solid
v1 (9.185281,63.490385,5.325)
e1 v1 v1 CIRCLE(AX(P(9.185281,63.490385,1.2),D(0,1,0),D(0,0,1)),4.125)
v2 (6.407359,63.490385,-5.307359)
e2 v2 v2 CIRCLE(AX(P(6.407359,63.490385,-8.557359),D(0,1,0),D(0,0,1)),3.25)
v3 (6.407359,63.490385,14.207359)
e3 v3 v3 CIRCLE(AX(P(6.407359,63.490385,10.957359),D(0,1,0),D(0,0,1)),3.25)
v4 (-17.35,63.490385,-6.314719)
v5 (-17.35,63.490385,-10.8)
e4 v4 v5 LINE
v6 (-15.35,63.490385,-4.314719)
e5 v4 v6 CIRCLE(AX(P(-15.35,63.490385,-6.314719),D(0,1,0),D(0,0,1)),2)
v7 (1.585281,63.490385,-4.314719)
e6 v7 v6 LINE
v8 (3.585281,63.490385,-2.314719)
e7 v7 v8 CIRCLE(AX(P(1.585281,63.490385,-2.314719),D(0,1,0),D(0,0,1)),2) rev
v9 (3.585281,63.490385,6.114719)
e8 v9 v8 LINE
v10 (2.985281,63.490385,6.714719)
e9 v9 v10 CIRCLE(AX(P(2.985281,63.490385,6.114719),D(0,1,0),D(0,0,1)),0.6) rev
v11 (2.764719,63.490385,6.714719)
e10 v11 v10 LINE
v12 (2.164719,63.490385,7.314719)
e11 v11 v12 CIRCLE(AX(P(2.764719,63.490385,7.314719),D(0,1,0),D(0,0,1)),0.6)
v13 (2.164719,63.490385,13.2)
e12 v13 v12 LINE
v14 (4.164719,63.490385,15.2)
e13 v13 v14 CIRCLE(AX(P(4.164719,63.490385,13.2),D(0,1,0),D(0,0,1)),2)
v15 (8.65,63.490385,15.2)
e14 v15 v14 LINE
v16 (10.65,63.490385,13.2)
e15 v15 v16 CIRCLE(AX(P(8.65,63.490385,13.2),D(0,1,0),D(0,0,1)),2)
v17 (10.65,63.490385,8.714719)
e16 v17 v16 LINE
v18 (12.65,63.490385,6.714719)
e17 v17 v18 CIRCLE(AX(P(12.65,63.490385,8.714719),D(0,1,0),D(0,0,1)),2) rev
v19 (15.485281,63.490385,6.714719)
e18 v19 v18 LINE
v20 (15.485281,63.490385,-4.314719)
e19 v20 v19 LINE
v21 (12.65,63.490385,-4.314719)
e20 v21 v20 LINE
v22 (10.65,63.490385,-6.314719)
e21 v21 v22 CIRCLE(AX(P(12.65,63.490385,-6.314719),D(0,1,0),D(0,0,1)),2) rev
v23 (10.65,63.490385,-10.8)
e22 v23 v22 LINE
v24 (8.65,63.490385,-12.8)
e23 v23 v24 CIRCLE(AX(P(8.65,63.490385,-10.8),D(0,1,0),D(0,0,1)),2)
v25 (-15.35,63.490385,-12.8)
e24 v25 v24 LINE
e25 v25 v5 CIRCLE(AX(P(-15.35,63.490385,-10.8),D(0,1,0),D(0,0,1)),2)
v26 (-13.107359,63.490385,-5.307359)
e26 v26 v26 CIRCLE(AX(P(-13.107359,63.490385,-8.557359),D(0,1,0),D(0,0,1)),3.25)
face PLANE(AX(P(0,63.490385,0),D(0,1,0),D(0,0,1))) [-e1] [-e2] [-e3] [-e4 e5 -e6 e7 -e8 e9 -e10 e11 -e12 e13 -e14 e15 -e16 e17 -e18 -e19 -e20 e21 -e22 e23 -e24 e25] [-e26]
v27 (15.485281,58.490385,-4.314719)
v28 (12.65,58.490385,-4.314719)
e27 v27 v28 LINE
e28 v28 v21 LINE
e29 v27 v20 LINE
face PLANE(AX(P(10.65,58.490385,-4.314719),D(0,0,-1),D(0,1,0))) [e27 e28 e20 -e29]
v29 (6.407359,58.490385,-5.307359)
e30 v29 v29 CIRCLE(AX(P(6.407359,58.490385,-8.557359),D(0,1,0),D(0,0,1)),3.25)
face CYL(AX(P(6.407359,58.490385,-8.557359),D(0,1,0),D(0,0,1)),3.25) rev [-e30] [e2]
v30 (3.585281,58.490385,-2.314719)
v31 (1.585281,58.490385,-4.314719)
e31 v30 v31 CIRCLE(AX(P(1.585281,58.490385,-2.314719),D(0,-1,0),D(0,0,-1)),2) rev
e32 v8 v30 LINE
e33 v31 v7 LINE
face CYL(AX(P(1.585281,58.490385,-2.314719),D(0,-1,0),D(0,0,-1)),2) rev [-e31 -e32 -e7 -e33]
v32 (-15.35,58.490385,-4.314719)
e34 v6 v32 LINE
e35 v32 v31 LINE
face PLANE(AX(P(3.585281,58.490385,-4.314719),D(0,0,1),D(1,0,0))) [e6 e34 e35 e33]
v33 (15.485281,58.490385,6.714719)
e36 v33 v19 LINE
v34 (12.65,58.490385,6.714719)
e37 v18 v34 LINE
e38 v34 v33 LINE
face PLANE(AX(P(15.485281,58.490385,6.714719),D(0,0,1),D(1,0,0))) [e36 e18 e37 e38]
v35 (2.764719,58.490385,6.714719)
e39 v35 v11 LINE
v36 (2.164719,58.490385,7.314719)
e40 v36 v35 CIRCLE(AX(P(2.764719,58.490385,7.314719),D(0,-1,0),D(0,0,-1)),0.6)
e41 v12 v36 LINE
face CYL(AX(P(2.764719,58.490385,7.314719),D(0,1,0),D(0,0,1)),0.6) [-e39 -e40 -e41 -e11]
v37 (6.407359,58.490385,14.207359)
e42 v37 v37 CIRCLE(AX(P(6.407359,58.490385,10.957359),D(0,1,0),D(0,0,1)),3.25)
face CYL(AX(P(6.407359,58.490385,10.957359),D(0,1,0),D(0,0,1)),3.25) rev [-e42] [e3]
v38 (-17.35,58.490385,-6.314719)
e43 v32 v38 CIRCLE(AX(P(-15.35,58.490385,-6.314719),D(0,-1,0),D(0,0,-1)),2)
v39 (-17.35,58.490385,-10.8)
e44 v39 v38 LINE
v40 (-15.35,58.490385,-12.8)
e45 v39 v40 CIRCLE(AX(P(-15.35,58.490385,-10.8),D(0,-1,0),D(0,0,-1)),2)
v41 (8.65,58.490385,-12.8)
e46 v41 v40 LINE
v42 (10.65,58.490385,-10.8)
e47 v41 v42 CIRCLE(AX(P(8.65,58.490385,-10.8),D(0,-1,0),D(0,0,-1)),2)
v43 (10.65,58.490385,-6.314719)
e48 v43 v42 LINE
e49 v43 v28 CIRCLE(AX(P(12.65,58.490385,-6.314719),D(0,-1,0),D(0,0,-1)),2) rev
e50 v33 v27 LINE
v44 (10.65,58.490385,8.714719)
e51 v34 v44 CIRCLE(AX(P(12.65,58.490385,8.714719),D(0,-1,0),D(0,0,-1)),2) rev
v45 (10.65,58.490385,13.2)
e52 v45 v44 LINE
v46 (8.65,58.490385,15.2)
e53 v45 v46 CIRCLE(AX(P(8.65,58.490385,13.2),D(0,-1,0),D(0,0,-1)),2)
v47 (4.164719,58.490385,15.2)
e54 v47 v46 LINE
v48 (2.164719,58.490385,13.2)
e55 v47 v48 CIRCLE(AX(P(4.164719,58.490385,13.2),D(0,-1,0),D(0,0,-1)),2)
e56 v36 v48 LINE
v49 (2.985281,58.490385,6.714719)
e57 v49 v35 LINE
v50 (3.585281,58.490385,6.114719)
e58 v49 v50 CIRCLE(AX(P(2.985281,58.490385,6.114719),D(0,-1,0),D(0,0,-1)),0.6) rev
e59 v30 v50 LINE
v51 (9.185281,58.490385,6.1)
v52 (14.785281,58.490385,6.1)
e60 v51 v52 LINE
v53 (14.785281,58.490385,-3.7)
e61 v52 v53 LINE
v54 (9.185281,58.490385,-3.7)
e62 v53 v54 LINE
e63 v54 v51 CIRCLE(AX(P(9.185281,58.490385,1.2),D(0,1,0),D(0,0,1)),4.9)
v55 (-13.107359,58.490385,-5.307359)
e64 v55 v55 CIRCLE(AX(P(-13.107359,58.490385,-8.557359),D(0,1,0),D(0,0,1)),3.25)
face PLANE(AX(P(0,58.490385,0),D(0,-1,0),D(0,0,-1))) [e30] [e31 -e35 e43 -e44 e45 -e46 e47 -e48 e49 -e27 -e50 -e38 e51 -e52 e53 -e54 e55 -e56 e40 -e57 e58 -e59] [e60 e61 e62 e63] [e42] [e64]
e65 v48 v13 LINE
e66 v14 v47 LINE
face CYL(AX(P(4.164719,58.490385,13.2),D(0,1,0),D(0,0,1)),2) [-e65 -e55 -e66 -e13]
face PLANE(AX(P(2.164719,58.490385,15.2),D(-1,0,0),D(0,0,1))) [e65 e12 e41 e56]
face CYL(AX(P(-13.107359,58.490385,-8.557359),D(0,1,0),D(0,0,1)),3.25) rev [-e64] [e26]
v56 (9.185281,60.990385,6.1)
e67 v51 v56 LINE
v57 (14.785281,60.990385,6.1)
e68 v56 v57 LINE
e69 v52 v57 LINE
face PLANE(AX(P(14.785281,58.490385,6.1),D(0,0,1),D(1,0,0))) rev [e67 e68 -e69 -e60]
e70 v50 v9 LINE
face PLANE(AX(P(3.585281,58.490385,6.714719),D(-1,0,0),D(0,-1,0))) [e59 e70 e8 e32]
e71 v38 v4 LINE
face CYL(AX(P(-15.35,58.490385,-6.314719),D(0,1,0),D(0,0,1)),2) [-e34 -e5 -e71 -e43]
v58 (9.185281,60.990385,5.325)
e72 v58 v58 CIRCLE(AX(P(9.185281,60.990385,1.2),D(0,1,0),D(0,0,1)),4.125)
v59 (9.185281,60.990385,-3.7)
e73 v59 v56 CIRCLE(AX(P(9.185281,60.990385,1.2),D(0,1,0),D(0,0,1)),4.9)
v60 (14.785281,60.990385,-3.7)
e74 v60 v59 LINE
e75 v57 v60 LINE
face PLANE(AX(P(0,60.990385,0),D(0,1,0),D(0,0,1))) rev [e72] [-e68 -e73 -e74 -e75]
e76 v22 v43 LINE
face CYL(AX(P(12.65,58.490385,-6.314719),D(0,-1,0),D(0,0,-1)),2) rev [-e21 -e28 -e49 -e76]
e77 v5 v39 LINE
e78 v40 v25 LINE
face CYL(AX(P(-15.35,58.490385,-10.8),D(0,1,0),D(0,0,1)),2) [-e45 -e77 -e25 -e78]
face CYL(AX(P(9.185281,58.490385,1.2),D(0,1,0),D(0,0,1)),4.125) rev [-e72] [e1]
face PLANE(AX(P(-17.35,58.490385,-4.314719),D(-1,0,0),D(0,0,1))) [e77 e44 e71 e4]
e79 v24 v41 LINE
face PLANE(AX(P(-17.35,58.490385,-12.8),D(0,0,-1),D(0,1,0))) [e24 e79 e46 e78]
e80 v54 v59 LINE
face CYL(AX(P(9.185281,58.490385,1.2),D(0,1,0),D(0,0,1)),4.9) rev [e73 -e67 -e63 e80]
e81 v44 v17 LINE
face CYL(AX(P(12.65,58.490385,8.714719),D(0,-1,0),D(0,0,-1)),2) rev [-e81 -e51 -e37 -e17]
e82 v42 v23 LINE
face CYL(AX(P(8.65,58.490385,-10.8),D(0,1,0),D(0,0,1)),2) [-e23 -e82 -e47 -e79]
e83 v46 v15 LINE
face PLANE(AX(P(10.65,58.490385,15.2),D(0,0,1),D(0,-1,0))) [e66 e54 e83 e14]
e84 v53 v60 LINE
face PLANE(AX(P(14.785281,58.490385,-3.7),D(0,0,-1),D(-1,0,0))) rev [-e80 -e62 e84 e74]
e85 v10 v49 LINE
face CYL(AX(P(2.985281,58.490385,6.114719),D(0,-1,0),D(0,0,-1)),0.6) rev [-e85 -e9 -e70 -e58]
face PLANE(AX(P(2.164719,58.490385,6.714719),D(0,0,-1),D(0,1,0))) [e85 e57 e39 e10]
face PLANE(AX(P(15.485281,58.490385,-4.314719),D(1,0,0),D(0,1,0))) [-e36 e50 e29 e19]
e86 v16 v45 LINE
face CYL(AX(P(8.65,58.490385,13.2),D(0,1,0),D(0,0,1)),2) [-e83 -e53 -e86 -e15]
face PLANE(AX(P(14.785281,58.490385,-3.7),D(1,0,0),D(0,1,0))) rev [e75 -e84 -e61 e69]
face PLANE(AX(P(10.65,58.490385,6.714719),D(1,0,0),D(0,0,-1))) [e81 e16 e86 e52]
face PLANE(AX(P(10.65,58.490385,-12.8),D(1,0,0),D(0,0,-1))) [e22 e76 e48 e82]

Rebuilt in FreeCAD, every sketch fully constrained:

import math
import FreeCAD as App
import Part
import Sketcher

V = App.Vector
Q = App.Units.Quantity


def edges_at(feature, points):
    """Names of the edges that pass closest to the given points."""
    edges = feature.Shape.Edges
    near = lambda p: min(range(len(edges)), key=lambda i: edges[i].distToShape(Part.Vertex(*p))[0])
    return sorted({f"Edge{near(p) + 1}" for p in points})

doc = App.newDocument("Part")
body = doc.addObject("PartDesign::Body", "Body")

sketch1 = body.newObject("Sketcher::SketchObject", "Sketch")
sketch1.AttachmentSupport = (doc.getObject("XZ_Plane"), [""])
sketch1.MapMode = "FlatFace"
sketch1.AttachmentOffset = App.Placement(V(0, 0, -60.990385), App.Rotation())
sketch1.addGeometry(Part.LineSegment(V(-17.4, -4.3, 0), V(3.6, -4.3, 0)), False)
sketch1.addGeometry(Part.LineSegment(V(3.6, -4.3, 0), V(3.6, 6.7, 0)), False)
sketch1.addGeometry(Part.LineSegment(V(3.6, 6.7, 0), V(2.2, 6.7, 0)), False)
sketch1.addGeometry(Part.LineSegment(V(2.2, 6.7, 0), V(2.2, 15.2, 0)), False)
sketch1.addGeometry(Part.LineSegment(V(2.2, 15.2, 0), V(10.7, 15.2, 0)), False)
sketch1.addGeometry(Part.LineSegment(V(10.7, 15.2, 0), V(10.7, 6.7, 0)), False)
sketch1.addGeometry(Part.LineSegment(V(10.7, 6.7, 0), V(15.5, 6.7, 0)), False)
sketch1.addGeometry(Part.LineSegment(V(15.5, 6.7, 0), V(15.5, -4.3, 0)), False)
sketch1.addGeometry(Part.LineSegment(V(15.5, -4.3, 0), V(10.7, -4.3, 0)), False)
sketch1.addGeometry(Part.LineSegment(V(10.7, -4.3, 0), V(10.7, -12.8, 0)), False)
sketch1.addGeometry(Part.LineSegment(V(10.7, -12.8, 0), V(-17.4, -12.8, 0)), False)
sketch1.addGeometry(Part.LineSegment(V(-17.4, -12.8, 0), V(-17.4, -4.3, 0)), False)
sketch1.addGeometry(Part.Circle(V(6.4, 11, 0), V(0, 0, 1), 3.2), False)
sketch1.addGeometry(Part.LineSegment(V(14.8, -3.7, 0), V(14.8, 6.1, 0)), False)
sketch1.addGeometry(Part.LineSegment(V(14.8, 6.1, 0), V(9.2, 6.1, 0)), False)
sketch1.addGeometry(Part.ArcOfCircle(Part.Circle(V(9.2, 1.2, 0), V(0, 0, 1), 4.9), math.radians(90), math.radians(270)), False)
sketch1.addGeometry(Part.LineSegment(V(9.2, -3.7, 0), V(14.8, -3.7, 0)), False)
sketch1.addGeometry(Part.Circle(V(6.4, -8.6, 0), V(0, 0, 1), 3.2), False)
sketch1.addGeometry(Part.Circle(V(-13.1, -8.6, 0), V(0, 0, 1), 3.2), False)
sketch1.addConstraint(Sketcher.Constraint("Coincident", 0, 2, 1, 1))
sketch1.addConstraint(Sketcher.Constraint("Coincident", 1, 2, 2, 1))
sketch1.addConstraint(Sketcher.Constraint("Coincident", 2, 2, 3, 1))
sketch1.addConstraint(Sketcher.Constraint("Coincident", 3, 2, 4, 1))
sketch1.addConstraint(Sketcher.Constraint("Coincident", 4, 2, 5, 1))
sketch1.addConstraint(Sketcher.Constraint("Coincident", 5, 2, 6, 1))
sketch1.addConstraint(Sketcher.Constraint("Coincident", 6, 2, 7, 1))
sketch1.addConstraint(Sketcher.Constraint("Coincident", 7, 2, 8, 1))
sketch1.addConstraint(Sketcher.Constraint("Coincident", 8, 2, 9, 1))
sketch1.addConstraint(Sketcher.Constraint("Coincident", 9, 2, 10, 1))
sketch1.addConstraint(Sketcher.Constraint("Coincident", 10, 2, 11, 1))
sketch1.addConstraint(Sketcher.Constraint("Coincident", 11, 2, 0, 1))
sketch1.addConstraint(Sketcher.Constraint("Coincident", 13, 2, 14, 1))
sketch1.addConstraint(Sketcher.Constraint("Tangent", 14, 2, 15, 1))
sketch1.addConstraint(Sketcher.Constraint("Tangent", 15, 2, 16, 1))
sketch1.addConstraint(Sketcher.Constraint("Coincident", 16, 2, 13, 1))
sketch1.addConstraint(Sketcher.Constraint("Horizontal", 0))
sketch1.addConstraint(Sketcher.Constraint("Vertical", 1))
sketch1.addConstraint(Sketcher.Constraint("Horizontal", 2))
sketch1.addConstraint(Sketcher.Constraint("Vertical", 3))
sketch1.addConstraint(Sketcher.Constraint("Horizontal", 4))
sketch1.addConstraint(Sketcher.Constraint("Vertical", 5))
sketch1.addConstraint(Sketcher.Constraint("Horizontal", 6))
sketch1.addConstraint(Sketcher.Constraint("Vertical", 7))
sketch1.addConstraint(Sketcher.Constraint("Horizontal", 8))
sketch1.addConstraint(Sketcher.Constraint("Vertical", 9))
sketch1.addConstraint(Sketcher.Constraint("Horizontal", 10))
sketch1.addConstraint(Sketcher.Constraint("Vertical", 11))
sketch1.addConstraint(Sketcher.Constraint("Vertical", 13))
sketch1.addConstraint(Sketcher.Constraint("Horizontal", 14))
sketch1.addConstraint(Sketcher.Constraint("Horizontal", 16))
sketch1.addConstraint(Sketcher.Constraint("Equal", 12, 17))
sketch1.addConstraint(Sketcher.Constraint("Equal", 17, 18))
sketch1.addConstraint(Sketcher.Constraint("Horizontal", 17, 3, 18, 3))
sketch1.addConstraint(Sketcher.Constraint("Horizontal", 2, 2, 5, 2))
sketch1.addConstraint(Sketcher.Constraint("Horizontal", 0, 2, 7, 2))
sketch1.addConstraint(Sketcher.Constraint("Vertical", 12, 3, 17, 3))
sketch1.addConstraint(Sketcher.Constraint("Vertical", 5, 2, 8, 2))
sketch1.addConstraint(Sketcher.Constraint("Equal", 4, 3))
sketch1.addConstraint(Sketcher.Constraint("Equal", 5, 9))
sketch1.addConstraint(Sketcher.Constraint("Diameter", 12, Q("6.5 mm")))
sketch1.addConstraint(Sketcher.Constraint("Radius", 15, Q("4.9 mm")))
sketch1.addConstraint(Sketcher.Constraint("DistanceX", 10, 2, 10, 1, Q("28 mm")))
sketch1.addConstraint(Sketcher.Constraint("DistanceX", 14, 2, 14, 1, Q("5.6 mm")))
sketch1.addConstraint(Sketcher.Constraint("DistanceY", 15, 3, 3, 2, Q("14 mm")))
sketch1.addConstraint(Sketcher.Constraint("DistanceY", 9, 2, 15, 3, Q("14 mm")))
sketch1.addConstraint(Sketcher.Constraint("DistanceY", -1, 1, 15, 3, Q("1.2 mm")))
sketch1.addConstraint(Sketcher.Constraint("DistanceX", 0, 2, 15, 3, Q("5.6 mm")))
sketch1.addConstraint(Sketcher.Constraint("DistanceX", 15, 3, 6, 2, Q("6.3 mm")))
sketch1.addConstraint(Sketcher.Constraint("DistanceX", -1, 1, 4, 2, Q("10.65 mm")))
sketch1.addConstraint(Sketcher.Constraint("DistanceX", 0, 1, 0, 2, Q("20.935281 mm")))
sketch1.addConstraint(Sketcher.Constraint("DistanceX", 4, 1, 4, 2, Q("8.485281 mm")))
sketch1.addConstraint(Sketcher.Constraint("DistanceX", -1, 1, 12, 3, Q("6.407359 mm")))
sketch1.addConstraint(Sketcher.Constraint("DistanceY", -1, 1, 12, 3, Q("10.957359 mm")))
sketch1.addConstraint(Sketcher.Constraint("DistanceY", 17, 3, -1, 1, Q("8.557359 mm")))
sketch1.addConstraint(Sketcher.Constraint("DistanceX", 18, 3, -1, 1, Q("13.107359 mm")))
pad1 = body.newObject("PartDesign::Pad", "Pad")
pad1.Profile = sketch1
pad1.Length = 2.5

sketch2 = body.newObject("Sketcher::SketchObject", "Sketch001")
sketch2.AttachmentSupport = (doc.getObject("XZ_Plane"), [""])
sketch2.MapMode = "FlatFace"
sketch2.AttachmentOffset = App.Placement(V(0, 0, -63.490385), App.Rotation())
sketch2.addGeometry(Part.LineSegment(V(3.6, -4.3, 0), V(3.6, 6.7, 0)), False)
sketch2.addGeometry(Part.LineSegment(V(3.6, 6.7, 0), V(2.2, 6.7, 0)), False)
sketch2.addGeometry(Part.LineSegment(V(2.2, 6.7, 0), V(2.2, 15.2, 0)), False)
sketch2.addGeometry(Part.LineSegment(V(2.2, 15.2, 0), V(10.7, 15.2, 0)), False)
sketch2.addGeometry(Part.LineSegment(V(10.7, 15.2, 0), V(10.7, 6.7, 0)), False)
sketch2.addGeometry(Part.LineSegment(V(10.7, 6.7, 0), V(15.5, 6.7, 0)), False)
sketch2.addGeometry(Part.LineSegment(V(15.5, 6.7, 0), V(15.5, -4.3, 0)), False)
sketch2.addGeometry(Part.LineSegment(V(15.5, -4.3, 0), V(10.7, -4.3, 0)), False)
sketch2.addGeometry(Part.LineSegment(V(10.7, -4.3, 0), V(10.7, -12.8, 0)), False)
sketch2.addGeometry(Part.LineSegment(V(10.7, -12.8, 0), V(-17.4, -12.8, 0)), False)
sketch2.addGeometry(Part.LineSegment(V(-17.4, -12.8, 0), V(-17.4, -4.3, 0)), False)
sketch2.addGeometry(Part.LineSegment(V(-17.4, -4.3, 0), V(3.6, -4.3, 0)), False)
sketch2.addGeometry(Part.Circle(V(6.4, 11, 0), V(0, 0, 1), 3.2), False)
sketch2.addGeometry(Part.Circle(V(6.4, -8.6, 0), V(0, 0, 1), 3.2), False)
sketch2.addGeometry(Part.Circle(V(-13.1, -8.6, 0), V(0, 0, 1), 3.2), False)
sketch2.addGeometry(Part.Circle(V(9.2, 1.2, 0), V(0, 0, 1), 4), False)
sketch2.addConstraint(Sketcher.Constraint("Coincident", 0, 2, 1, 1))
sketch2.addConstraint(Sketcher.Constraint("Coincident", 1, 2, 2, 1))
sketch2.addConstraint(Sketcher.Constraint("Coincident", 2, 2, 3, 1))
sketch2.addConstraint(Sketcher.Constraint("Coincident", 3, 2, 4, 1))
sketch2.addConstraint(Sketcher.Constraint("Coincident", 4, 2, 5, 1))
sketch2.addConstraint(Sketcher.Constraint("Coincident", 5, 2, 6, 1))
sketch2.addConstraint(Sketcher.Constraint("Coincident", 6, 2, 7, 1))
sketch2.addConstraint(Sketcher.Constraint("Coincident", 7, 2, 8, 1))
sketch2.addConstraint(Sketcher.Constraint("Coincident", 8, 2, 9, 1))
sketch2.addConstraint(Sketcher.Constraint("Coincident", 9, 2, 10, 1))
sketch2.addConstraint(Sketcher.Constraint("Coincident", 10, 2, 11, 1))
sketch2.addConstraint(Sketcher.Constraint("Coincident", 11, 2, 0, 1))
sketch2.addConstraint(Sketcher.Constraint("Vertical", 0))
sketch2.addConstraint(Sketcher.Constraint("Horizontal", 1))
sketch2.addConstraint(Sketcher.Constraint("Vertical", 2))
sketch2.addConstraint(Sketcher.Constraint("Horizontal", 3))
sketch2.addConstraint(Sketcher.Constraint("Vertical", 4))
sketch2.addConstraint(Sketcher.Constraint("Horizontal", 5))
sketch2.addConstraint(Sketcher.Constraint("Vertical", 6))
sketch2.addConstraint(Sketcher.Constraint("Horizontal", 7))
sketch2.addConstraint(Sketcher.Constraint("Vertical", 8))
sketch2.addConstraint(Sketcher.Constraint("Horizontal", 9))
sketch2.addConstraint(Sketcher.Constraint("Vertical", 10))
sketch2.addConstraint(Sketcher.Constraint("Horizontal", 11))
sketch2.addConstraint(Sketcher.Constraint("Equal", 12, 13))
sketch2.addConstraint(Sketcher.Constraint("Equal", 13, 14))
sketch2.addConstraint(Sketcher.Constraint("Horizontal", 13, 3, 14, 3))
sketch2.addConstraint(Sketcher.Constraint("Horizontal", 1, 2, 4, 2))
sketch2.addConstraint(Sketcher.Constraint("Horizontal", 7, 2, 10, 2))
sketch2.addConstraint(Sketcher.Constraint("Vertical", 12, 3, 13, 3))
sketch2.addConstraint(Sketcher.Constraint("Vertical", 4, 2, 7, 2))
sketch2.addConstraint(Sketcher.Constraint("Equal", 3, 2))
sketch2.addConstraint(Sketcher.Constraint("Equal", 4, 8))
sketch2.addConstraint(Sketcher.Constraint("Diameter", 12, Q("6.5 mm")))
sketch2.addConstraint(Sketcher.Constraint("Diameter", 15, Q("8.05 mm")))
sketch2.addConstraint(Sketcher.Constraint("DistanceX", 9, 2, 9, 1, Q("28 mm")))
sketch2.addConstraint(Sketcher.Constraint("DistanceY", 15, 3, 2, 2, Q("14 mm")))
sketch2.addConstraint(Sketcher.Constraint("DistanceY", 8, 2, 15, 3, Q("14 mm")))
sketch2.addConstraint(Sketcher.Constraint("DistanceY", -1, 1, 15, 3, Q("1.2 mm")))
sketch2.addConstraint(Sketcher.Constraint("DistanceX", 0, 2, 15, 3, Q("5.6 mm")))
sketch2.addConstraint(Sketcher.Constraint("DistanceX", 15, 3, 5, 2, Q("6.3 mm")))
sketch2.addConstraint(Sketcher.Constraint("DistanceX", -1, 1, 3, 2, Q("10.65 mm")))
sketch2.addConstraint(Sketcher.Constraint("DistanceX", 3, 1, 3, 2, Q("8.485281 mm")))
sketch2.addConstraint(Sketcher.Constraint("DistanceX", 5, 1, 5, 2, Q("4.835281 mm")))
sketch2.addConstraint(Sketcher.Constraint("DistanceX", -1, 1, 12, 3, Q("6.407359 mm")))
sketch2.addConstraint(Sketcher.Constraint("DistanceY", -1, 1, 12, 3, Q("10.957359 mm")))
sketch2.addConstraint(Sketcher.Constraint("DistanceY", 13, 3, -1, 1, Q("8.557359 mm")))
sketch2.addConstraint(Sketcher.Constraint("DistanceX", 14, 3, -1, 1, Q("13.107359 mm")))
pad2 = body.newObject("PartDesign::Pad", "Pad001")
pad2.Profile = sketch2
pad2.Length = 2.5

sketch3 = body.newObject("Sketcher::SketchObject", "Sketch002")
sketch3.AttachmentSupport = (doc.getObject("XZ_Plane"), [""])
sketch3.MapMode = "FlatFace"
sketch3.AttachmentOffset = App.Placement(V(0, 0, -63.490385), App.Rotation())
sketch3.addGeometry(Part.Circle(V(9.2, 1.2, 0), V(0, 0, 1), 4.1), False)
sketch3.addConstraint(Sketcher.Constraint("Diameter", 0, Q("8.25 mm")))
sketch3.addConstraint(Sketcher.Constraint("DistanceY", -1, 1, 0, 3, Q("1.2 mm")))
sketch3.addConstraint(Sketcher.Constraint("DistanceX", -1, 1, 0, 3, Q("9.185281 mm")))
pocket1 = body.newObject("PartDesign::Pocket", "Pocket")
pocket1.Profile = sketch3
pocket1.Type = "ThroughAll"
pocket1.Reversed = True
doc.recompute()

fillet = body.newObject("PartDesign::Fillet", "Fillet")
fillet.Base = (pocket1, edges_at(pocket1, [(2.165, 60.99, 6.715), (3.585, 60.99, 6.715)]))
fillet.Radius = 0.6
doc.recompute()

fillet2 = body.newObject("PartDesign::Fillet", "Fillet001")
fillet2.Base = (fillet, edges_at(fillet, [
    (10.65, 60.99, -12.8),
    (10.65, 60.99, -4.315),
    (10.65, 60.99, 6.715),
    (10.65, 60.99, 15.2),
    (2.165, 60.99, 15.2),
    (3.585, 60.99, -4.315),
    (-17.35, 60.99, -4.315),
    (-17.35, 60.99, -12.8),
]))
fillet2.Radius = 2

doc.recompute()
